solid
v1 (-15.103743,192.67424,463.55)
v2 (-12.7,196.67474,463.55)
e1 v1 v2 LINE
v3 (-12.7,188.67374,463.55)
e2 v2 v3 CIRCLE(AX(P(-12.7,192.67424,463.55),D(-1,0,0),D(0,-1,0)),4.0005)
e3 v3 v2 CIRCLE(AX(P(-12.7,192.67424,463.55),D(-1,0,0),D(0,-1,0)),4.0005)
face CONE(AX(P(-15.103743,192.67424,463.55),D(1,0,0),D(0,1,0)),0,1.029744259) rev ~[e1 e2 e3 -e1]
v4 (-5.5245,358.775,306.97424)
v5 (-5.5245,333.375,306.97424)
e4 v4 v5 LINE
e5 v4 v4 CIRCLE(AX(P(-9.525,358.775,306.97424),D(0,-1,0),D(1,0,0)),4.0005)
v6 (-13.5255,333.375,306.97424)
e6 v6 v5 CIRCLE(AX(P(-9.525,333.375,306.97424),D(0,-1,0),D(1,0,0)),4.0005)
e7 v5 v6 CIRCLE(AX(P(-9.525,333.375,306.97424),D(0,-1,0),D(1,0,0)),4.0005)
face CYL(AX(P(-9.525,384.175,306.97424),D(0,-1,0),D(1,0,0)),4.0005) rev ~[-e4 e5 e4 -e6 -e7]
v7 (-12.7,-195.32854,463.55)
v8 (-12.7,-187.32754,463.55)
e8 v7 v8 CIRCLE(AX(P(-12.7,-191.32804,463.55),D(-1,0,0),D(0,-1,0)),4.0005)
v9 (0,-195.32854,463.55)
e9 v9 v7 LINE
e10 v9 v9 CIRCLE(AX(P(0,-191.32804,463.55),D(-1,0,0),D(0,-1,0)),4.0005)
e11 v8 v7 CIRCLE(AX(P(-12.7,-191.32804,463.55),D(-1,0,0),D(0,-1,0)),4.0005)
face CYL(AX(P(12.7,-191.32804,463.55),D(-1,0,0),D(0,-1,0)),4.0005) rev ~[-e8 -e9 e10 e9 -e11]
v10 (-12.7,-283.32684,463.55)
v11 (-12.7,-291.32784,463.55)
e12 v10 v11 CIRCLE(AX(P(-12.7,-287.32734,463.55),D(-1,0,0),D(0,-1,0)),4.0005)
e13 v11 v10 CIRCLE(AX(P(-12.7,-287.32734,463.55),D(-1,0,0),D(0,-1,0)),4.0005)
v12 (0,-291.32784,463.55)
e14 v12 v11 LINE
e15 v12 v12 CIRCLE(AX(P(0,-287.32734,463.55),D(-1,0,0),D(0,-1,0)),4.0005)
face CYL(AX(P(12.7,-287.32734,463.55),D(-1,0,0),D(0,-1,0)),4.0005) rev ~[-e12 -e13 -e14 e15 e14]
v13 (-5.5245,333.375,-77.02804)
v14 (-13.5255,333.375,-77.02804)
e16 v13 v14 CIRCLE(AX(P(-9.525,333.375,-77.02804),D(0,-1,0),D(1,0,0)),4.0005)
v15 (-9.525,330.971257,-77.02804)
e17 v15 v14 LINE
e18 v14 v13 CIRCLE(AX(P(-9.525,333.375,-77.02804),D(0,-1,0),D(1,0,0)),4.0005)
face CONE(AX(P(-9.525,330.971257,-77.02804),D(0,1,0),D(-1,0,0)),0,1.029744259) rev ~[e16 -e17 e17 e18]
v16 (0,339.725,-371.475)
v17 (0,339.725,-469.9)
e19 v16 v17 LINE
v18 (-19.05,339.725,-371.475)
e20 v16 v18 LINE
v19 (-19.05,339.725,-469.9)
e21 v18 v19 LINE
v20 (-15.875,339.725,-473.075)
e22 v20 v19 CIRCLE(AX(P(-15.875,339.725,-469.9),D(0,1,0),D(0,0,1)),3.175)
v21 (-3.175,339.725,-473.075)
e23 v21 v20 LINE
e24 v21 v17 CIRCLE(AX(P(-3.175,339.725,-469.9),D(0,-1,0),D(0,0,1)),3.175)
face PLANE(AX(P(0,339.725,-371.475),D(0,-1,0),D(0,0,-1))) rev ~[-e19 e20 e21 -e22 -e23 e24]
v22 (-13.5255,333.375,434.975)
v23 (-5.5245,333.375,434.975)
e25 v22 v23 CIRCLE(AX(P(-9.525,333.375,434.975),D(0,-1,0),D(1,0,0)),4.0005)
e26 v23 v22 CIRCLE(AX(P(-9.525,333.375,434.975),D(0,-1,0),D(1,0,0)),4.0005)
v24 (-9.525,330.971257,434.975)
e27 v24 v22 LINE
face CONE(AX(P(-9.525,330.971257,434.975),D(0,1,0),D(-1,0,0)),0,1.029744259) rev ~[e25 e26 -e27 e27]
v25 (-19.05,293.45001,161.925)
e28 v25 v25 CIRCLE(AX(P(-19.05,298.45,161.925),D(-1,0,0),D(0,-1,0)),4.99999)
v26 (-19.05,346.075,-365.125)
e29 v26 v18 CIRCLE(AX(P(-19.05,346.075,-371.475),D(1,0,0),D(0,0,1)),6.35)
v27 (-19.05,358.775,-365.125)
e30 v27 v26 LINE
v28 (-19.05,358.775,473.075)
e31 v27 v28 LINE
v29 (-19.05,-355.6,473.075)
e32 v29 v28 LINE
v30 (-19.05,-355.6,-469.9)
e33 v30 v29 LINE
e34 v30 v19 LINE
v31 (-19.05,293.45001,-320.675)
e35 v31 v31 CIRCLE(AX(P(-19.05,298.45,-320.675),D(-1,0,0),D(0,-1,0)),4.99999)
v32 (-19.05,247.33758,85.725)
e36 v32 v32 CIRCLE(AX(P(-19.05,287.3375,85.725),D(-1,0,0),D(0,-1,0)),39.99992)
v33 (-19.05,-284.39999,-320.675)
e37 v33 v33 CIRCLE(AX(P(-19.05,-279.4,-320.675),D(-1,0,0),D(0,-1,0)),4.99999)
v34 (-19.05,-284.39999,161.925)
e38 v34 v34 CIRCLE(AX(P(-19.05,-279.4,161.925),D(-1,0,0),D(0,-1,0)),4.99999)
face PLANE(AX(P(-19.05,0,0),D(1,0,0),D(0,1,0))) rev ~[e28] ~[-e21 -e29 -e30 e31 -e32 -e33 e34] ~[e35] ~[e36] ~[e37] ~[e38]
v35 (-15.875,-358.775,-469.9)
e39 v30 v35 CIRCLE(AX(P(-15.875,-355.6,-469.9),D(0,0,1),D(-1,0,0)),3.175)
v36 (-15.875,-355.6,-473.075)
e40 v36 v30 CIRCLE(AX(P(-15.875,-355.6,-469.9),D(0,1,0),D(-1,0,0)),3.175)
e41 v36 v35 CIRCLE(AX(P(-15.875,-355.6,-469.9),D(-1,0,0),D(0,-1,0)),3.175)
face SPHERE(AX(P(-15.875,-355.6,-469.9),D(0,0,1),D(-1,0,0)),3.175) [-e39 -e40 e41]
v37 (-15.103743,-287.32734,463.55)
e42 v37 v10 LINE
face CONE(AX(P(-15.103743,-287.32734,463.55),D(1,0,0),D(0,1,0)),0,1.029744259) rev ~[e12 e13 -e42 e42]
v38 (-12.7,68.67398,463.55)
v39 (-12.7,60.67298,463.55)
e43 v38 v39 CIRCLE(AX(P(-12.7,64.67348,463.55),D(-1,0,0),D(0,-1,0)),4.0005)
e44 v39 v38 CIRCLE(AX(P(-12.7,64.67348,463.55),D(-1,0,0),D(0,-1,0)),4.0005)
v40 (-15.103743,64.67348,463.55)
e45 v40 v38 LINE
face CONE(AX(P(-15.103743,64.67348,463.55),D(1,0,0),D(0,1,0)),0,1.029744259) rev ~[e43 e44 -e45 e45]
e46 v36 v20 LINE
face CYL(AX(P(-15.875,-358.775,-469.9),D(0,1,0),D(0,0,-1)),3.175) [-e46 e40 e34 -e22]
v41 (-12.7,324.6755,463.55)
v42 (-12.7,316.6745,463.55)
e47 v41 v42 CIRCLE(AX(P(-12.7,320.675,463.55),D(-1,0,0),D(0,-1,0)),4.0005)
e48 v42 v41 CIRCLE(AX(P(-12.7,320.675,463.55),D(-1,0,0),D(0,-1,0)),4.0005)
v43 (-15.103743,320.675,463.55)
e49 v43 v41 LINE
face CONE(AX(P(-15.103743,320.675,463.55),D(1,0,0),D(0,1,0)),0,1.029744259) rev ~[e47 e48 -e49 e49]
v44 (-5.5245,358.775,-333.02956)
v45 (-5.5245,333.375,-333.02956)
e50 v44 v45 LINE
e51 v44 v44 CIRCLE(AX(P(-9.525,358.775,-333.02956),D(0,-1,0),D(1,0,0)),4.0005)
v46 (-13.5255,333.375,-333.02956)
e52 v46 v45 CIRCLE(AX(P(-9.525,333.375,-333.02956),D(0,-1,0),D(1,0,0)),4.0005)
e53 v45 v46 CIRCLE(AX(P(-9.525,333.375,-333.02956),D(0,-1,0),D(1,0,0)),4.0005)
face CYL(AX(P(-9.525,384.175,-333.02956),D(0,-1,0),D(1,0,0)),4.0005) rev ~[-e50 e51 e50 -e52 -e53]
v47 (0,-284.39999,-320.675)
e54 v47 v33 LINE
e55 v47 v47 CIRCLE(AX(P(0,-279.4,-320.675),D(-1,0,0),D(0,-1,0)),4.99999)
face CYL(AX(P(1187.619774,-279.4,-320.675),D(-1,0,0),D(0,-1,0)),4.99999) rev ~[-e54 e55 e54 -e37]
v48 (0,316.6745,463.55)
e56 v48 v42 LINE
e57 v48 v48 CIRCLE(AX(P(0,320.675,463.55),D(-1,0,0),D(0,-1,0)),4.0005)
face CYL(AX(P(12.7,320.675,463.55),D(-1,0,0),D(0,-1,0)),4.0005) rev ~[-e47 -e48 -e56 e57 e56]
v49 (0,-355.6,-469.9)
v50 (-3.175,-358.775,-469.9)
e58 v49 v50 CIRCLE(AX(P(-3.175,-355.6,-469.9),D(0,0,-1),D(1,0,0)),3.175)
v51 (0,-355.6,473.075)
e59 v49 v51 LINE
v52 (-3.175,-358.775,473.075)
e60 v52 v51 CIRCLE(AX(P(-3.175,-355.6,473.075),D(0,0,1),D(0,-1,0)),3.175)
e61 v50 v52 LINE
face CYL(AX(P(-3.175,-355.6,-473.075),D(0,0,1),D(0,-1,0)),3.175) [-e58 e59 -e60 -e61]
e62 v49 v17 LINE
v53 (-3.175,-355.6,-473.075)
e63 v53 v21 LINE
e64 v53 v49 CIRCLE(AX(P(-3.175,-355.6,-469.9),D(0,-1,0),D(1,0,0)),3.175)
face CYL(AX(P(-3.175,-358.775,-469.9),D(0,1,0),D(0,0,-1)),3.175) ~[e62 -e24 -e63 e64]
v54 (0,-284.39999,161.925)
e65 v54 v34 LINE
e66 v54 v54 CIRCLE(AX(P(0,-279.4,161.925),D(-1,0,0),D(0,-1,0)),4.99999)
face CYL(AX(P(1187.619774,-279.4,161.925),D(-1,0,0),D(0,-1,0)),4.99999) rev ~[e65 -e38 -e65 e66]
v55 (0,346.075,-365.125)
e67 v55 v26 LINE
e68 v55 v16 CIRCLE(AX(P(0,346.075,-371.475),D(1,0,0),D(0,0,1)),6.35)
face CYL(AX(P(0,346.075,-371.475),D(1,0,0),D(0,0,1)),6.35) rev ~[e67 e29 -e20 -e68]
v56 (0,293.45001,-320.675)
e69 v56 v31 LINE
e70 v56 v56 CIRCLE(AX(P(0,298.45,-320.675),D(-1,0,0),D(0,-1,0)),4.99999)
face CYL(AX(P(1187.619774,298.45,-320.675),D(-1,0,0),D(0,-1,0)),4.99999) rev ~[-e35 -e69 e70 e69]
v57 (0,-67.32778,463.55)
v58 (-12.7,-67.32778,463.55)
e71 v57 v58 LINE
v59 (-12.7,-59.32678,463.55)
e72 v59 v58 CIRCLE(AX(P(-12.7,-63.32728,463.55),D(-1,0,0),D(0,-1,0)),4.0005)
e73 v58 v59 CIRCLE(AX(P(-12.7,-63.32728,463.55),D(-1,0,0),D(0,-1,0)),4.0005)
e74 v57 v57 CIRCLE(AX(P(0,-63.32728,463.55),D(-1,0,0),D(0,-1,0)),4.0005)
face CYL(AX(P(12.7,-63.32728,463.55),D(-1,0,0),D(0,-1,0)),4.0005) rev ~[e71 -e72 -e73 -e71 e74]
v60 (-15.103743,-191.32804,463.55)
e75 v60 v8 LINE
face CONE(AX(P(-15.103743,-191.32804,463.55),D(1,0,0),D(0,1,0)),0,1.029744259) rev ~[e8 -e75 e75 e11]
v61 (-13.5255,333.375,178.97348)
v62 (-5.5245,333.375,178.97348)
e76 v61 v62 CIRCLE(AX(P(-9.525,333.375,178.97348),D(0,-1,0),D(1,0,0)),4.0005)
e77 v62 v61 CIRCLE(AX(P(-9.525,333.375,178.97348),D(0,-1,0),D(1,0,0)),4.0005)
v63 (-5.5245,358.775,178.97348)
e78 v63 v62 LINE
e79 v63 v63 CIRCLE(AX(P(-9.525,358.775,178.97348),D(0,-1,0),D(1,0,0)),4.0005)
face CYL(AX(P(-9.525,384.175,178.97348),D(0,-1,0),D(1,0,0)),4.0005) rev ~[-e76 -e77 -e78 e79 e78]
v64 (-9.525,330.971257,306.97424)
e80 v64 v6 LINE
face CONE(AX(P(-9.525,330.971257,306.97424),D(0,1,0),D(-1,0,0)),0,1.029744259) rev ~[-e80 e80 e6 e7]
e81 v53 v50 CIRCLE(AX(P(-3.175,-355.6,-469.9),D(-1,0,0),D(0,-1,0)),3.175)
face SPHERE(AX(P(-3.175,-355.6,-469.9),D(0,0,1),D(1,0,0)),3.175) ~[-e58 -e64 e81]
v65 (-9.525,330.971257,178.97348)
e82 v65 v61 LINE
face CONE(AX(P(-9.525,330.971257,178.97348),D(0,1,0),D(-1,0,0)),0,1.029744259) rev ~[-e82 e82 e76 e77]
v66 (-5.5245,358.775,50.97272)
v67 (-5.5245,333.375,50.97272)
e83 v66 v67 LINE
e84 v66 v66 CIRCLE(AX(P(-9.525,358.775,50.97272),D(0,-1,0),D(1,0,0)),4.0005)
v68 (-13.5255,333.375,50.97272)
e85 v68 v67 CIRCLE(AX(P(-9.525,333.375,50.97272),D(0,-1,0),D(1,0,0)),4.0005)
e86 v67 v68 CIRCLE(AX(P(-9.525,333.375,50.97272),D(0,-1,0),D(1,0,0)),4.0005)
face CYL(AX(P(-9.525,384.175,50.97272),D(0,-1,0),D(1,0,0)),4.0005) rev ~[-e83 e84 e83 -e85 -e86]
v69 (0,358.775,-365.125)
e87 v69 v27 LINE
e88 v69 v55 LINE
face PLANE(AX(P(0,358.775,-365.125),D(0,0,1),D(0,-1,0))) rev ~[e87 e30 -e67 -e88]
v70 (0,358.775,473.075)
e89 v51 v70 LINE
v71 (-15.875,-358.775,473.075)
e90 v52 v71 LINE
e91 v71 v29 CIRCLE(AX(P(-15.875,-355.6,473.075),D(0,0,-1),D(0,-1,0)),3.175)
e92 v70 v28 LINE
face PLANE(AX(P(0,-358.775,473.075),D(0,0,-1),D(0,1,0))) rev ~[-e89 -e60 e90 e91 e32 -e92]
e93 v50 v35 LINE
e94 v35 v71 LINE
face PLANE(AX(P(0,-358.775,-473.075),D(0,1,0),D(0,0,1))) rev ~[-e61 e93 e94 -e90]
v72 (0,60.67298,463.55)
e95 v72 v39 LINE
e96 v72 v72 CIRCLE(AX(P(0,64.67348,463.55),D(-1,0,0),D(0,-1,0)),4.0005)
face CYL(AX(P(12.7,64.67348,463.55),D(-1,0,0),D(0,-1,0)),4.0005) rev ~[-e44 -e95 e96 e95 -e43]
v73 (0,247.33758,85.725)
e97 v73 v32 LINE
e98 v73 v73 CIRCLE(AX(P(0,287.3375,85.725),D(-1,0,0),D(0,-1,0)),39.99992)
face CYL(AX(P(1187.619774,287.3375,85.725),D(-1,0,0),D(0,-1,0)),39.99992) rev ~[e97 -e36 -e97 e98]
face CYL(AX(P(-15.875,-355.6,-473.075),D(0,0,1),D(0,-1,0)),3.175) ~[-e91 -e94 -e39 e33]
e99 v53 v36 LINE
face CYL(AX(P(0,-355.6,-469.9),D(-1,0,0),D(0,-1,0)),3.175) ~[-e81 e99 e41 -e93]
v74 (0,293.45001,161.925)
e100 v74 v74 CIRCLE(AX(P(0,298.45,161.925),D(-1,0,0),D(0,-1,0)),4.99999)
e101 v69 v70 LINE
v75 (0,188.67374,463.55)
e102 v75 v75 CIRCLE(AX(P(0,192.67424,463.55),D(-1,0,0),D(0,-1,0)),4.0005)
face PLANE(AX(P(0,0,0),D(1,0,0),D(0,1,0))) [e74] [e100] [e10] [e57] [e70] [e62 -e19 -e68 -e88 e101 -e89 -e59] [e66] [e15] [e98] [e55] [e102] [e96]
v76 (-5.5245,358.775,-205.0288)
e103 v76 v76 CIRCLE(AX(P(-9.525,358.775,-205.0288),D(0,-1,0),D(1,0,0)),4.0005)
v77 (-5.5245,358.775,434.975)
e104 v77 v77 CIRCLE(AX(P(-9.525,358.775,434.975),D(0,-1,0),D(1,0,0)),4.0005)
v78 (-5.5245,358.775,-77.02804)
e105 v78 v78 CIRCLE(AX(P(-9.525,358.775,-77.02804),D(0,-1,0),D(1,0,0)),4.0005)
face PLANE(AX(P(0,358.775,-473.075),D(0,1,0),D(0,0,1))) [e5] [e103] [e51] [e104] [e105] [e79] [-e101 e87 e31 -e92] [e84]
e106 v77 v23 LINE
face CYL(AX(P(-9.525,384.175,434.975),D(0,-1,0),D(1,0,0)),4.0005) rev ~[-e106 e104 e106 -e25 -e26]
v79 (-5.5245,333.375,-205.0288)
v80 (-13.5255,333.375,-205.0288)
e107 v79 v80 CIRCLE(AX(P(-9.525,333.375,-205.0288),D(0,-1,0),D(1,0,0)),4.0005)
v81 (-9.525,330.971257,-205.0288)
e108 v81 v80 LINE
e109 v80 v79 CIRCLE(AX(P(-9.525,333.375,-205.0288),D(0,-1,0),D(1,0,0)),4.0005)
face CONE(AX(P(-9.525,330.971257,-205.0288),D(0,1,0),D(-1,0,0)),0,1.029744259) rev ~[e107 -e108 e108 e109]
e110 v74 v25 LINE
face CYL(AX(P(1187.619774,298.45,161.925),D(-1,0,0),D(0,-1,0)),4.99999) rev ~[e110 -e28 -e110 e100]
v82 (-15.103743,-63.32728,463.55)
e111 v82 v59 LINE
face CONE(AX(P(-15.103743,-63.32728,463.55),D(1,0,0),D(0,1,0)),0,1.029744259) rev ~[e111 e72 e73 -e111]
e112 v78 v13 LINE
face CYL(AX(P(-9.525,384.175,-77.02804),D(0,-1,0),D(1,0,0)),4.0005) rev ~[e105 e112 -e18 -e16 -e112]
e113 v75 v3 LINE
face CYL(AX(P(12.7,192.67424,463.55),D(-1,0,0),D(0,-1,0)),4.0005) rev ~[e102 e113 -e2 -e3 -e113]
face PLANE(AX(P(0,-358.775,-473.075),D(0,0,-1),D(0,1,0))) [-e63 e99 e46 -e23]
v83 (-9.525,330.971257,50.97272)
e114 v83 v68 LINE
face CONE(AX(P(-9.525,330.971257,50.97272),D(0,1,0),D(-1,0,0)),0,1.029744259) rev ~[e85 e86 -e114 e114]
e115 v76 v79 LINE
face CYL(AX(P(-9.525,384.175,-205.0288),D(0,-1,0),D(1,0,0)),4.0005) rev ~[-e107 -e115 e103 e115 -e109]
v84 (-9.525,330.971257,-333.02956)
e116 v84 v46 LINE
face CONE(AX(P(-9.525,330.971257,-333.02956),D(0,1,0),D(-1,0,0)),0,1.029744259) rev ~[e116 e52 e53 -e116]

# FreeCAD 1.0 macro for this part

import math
import FreeCAD as App
import Part
import Sketcher
Q = App.Units.Quantity


def edges_at(feature, points):
    """Names of the edges that pass closest to the given points."""
    edges = feature.Shape.Edges
    near = lambda p: min(range(len(edges)), key=lambda i: edges[i].distToShape(Part.Vertex(*p))[0])
    return sorted({f"Edge{near(p) + 1}" for p in points})

doc = App.newDocument("Part")
body = doc.addObject("PartDesign::Body", "Body")

# Sketch on YZ plane
sketch1 = doc.addObject("Sketcher::SketchObject", "Sketch")
body.addObject(sketch1)
sketch1.AttachmentSupport = (doc.YZ_Plane, [""])
sketch1.MapMode = "FlatFace"
sketch1.addGeometry([
    Part.LineSegment(App.Vector(-359, 473, 0), App.Vector(-359, -473, 0)),
    Part.LineSegment(App.Vector(-359, -473, 0), App.Vector(359, -473, 0)),
    Part.LineSegment(App.Vector(359, -473, 0), App.Vector(359, 473, 0)),
    Part.LineSegment(App.Vector(359, 473, 0), App.Vector(-359, 473, 0)),
], False)
sketch1.addConstraint([
    Sketcher.Constraint("Coincident", 0, 2, 1, 1),
    Sketcher.Constraint("Coincident", 1, 2, 2, 1),
    Sketcher.Constraint("Coincident", 2, 2, 3, 1),
    Sketcher.Constraint("Coincident", 3, 2, 0, 1),
    Sketcher.Constraint("Vertical", 0),
    Sketcher.Constraint("Horizontal", 1),
    Sketcher.Constraint("Vertical", 2),
    Sketcher.Constraint("Horizontal", 3),
    Sketcher.Constraint("Symmetric", 0, 2, 2, 2, -1, 1),
    Sketcher.Constraint("DistanceX", 1, 1, 1, 2, Q("28.25 in")),
    Sketcher.Constraint("DistanceY", 0, 2, 0, 1, Q("37.25 in")),
])
pad1 = doc.addObject("PartDesign::Pad", "Pad")
body.addObject(pad1)
pad1.Profile = sketch1
pad1.Length = Q("0.75 in")
pad1.Reversed = True

# Sketch on YZ plane
sketch2 = doc.addObject("Sketcher::SketchObject", "Sketch001")
body.addObject(sketch2)
sketch2.AttachmentSupport = (doc.YZ_Plane, [""])
sketch2.MapMode = "FlatFace"
sketch2.addGeometry([
    Part.Circle(App.Vector(-287.3, 463.6, 0), App.Vector(0, 0, 1), 4),  # 0
    Part.Circle(App.Vector(-191.3, 463.6, 0), App.Vector(0, 0, 1), 4),  # 1
    Part.Circle(App.Vector(-63.3, 463.6, 0), App.Vector(0, 0, 1), 4),  # 2
    Part.Circle(App.Vector(64.7, 463.6, 0), App.Vector(0, 0, 1), 4),  # 3
    Part.Circle(App.Vector(192.7, 463.6, 0), App.Vector(0, 0, 1), 4),  # 4
    Part.Circle(App.Vector(320.7, 463.6, 0), App.Vector(0, 0, 1), 4),  # 5
], False)
sketch2.addConstraint([
    Sketcher.Constraint("Equal", 0, 1),
    Sketcher.Constraint("Equal", 1, 2),
    Sketcher.Constraint("Equal", 2, 3),
    Sketcher.Constraint("Equal", 3, 4),
    Sketcher.Constraint("Equal", 4, 5),
    Sketcher.Constraint("Horizontal", 0, 3, 1, 3),
    Sketcher.Constraint("Horizontal", 1, 3, 2, 3),
    Sketcher.Constraint("Horizontal", 2, 3, 3, 3),
    Sketcher.Constraint("Horizontal", 3, 3, 4, 3),
    Sketcher.Constraint("Horizontal", 4, 3, 5, 3),
    Sketcher.Constraint("Diameter", 0, Q("0.315 in")),
    Sketcher.Constraint("DistanceY", -1, 1, 0, 3, Q("18.25 in")),
    Sketcher.Constraint("DistanceX", -1, 1, 5, 3, Q("12.625 in")),
    Sketcher.Constraint("DistanceX", 0, 3, -1, 1, Q("11.3121 in")),
    Sketcher.Constraint("DistanceX", 1, 3, -1, 1, Q("7.5326 in")),
    Sketcher.Constraint("DistanceX", 2, 3, -1, 1, Q("2.4932 in")),
    Sketcher.Constraint("DistanceX", -1, 1, 3, 3, Q("2.5462 in")),
    Sketcher.Constraint("DistanceX", -1, 1, 4, 3, Q("7.5856 in")),
])
doc.recompute()
hole = doc.addObject("PartDesign::Hole", "Hole")
body.addObject(hole)
hole.Profile = sketch2
hole.ThreadType = "None"
hole.Diameter = Q("0.315 in")
hole.DepthType = "Dimension"
hole.Depth = Q("0.5 in")
hole.DrillPoint = "Angled"
hole.DrillPointAngle = 118

# Sketch on YZ plane
sketch3 = doc.addObject("Sketcher::SketchObject", "Sketch002")
body.addObject(sketch3)
sketch3.AttachmentSupport = (doc.YZ_Plane, [""])
sketch3.MapMode = "FlatFace"
sketch3.addGeometry([
    Part.LineSegment(App.Vector(340, -473, 0), App.Vector(359, -473, 0)),  # 0
    Part.LineSegment(App.Vector(359, -473, 0), App.Vector(359, -365, 0)),  # 1
    Part.LineSegment(App.Vector(359, -365, 0), App.Vector(346, -365, 0)),  # 2
    Part.ArcOfCircle(Part.Circle(App.Vector(346, -371, 0), App.Vector(0, 0, 1), 6), math.radians(90), math.radians(180)),  # 3
    Part.LineSegment(App.Vector(340, -371, 0), App.Vector(340, -473, 0)),  # 4
], False)
sketch3.addConstraint([
    Sketcher.Constraint("Coincident", 0, 2, 1, 1),
    Sketcher.Constraint("Coincident", 1, 2, 2, 1),
    Sketcher.Constraint("Tangent", 2, 2, 3, 1),
    Sketcher.Constraint("Tangent", 3, 2, 4, 1),
    Sketcher.Constraint("Coincident", 4, 2, 0, 1),
    Sketcher.Constraint("Horizontal", 0),
    Sketcher.Constraint("Vertical", 1),
    Sketcher.Constraint("Horizontal", 2),
    Sketcher.Constraint("Vertical", 4),
    Sketcher.Constraint("DistanceY", 4, 2, 4, 1, Q("4 in")),
    Sketcher.Constraint("Radius", 3, Q("0.25 in")),
    Sketcher.Constraint("DistanceX", 2, 2, 2, 1, Q("0.5 in")),
    Sketcher.Constraint("DistanceX", -1, 1, 3, 3, Q("13.625 in")),
    Sketcher.Constraint("DistanceY", 3, 3, -1, 1, Q("14.625 in")),
])
pocket1 = doc.addObject("PartDesign::Pocket", "Pocket")
body.addObject(pocket1)
pocket1.Profile = sketch3
pocket1.Type = "ThroughAll"

# Sketch on YZ plane
sketch4 = doc.addObject("Sketcher::SketchObject", "Sketch003")
body.addObject(sketch4)
sketch4.AttachmentSupport = (doc.YZ_Plane, [""])
sketch4.MapMode = "FlatFace"
sketch4.addGeometry([
    Part.Circle(App.Vector(-279.4, 161.9, 0), App.Vector(0, 0, 1), 5),
    Part.Circle(App.Vector(-279.4, -320.7, 0), App.Vector(0, 0, 1), 5),
    Part.Circle(App.Vector(298.4, -320.7, 0), App.Vector(0, 0, 1), 5),
    Part.Circle(App.Vector(298.4, 161.9, 0), App.Vector(0, 0, 1), 5),
], False)
sketch4.addConstraint([
    Sketcher.Constraint("Equal", 0, 1),
    Sketcher.Constraint("Equal", 1, 2),
    Sketcher.Constraint("Equal", 2, 3),
    Sketcher.Constraint("Horizontal", 1, 3, 2, 3),
    Sketcher.Constraint("Horizontal", 0, 3, 3, 3),
    Sketcher.Constraint("Vertical", 0, 3, 1, 3),
    Sketcher.Constraint("Vertical", 2, 3, 3, 3),
    Sketcher.Constraint("DistanceX", 0, 3, -1, 1, Q("11 in")),
    Sketcher.Constraint("DistanceY", 1, 3, 0, 3, Q("19 in")),
    Sketcher.Constraint("Diameter", 0, Q("0.3937 in")),
    Sketcher.Constraint("DistanceX", -1, 1, 2, 3, Q("11.75 in")),
    Sketcher.Constraint("DistanceY", -1, 1, 0, 3, Q("6.375 in")),
])
doc.recompute()
hole2 = doc.addObject("PartDesign::Hole", "Hole001")
body.addObject(hole2)
hole2.Profile = sketch4
hole2.ThreadType = "None"
hole2.Diameter = Q("0.3937 in")
hole2.DepthType = "ThroughAll"

# Sketch on YZ plane
sketch5 = doc.addObject("Sketcher::SketchObject", "Sketch004")
body.addObject(sketch5)
sketch5.AttachmentSupport = (doc.YZ_Plane, [""])
sketch5.MapMode = "FlatFace"
sketch5.addGeometry(Part.Circle(App.Vector(287, 86, 0), App.Vector(0, 0, 1), 40), False)
sketch5.addConstraint([
    Sketcher.Constraint("Diameter", 0, Q("3.1496 in")),
    Sketcher.Constraint("DistanceX", -1, 1, 0, 3, Q("11.3125 in")),
    Sketcher.Constraint("DistanceY", -1, 1, 0, 3, Q("3.375 in")),
])
doc.recompute()
hole3 = doc.addObject("PartDesign::Hole", "Hole002")
body.addObject(hole3)
hole3.Profile = sketch5
hole3.ThreadType = "None"
hole3.Diameter = Q("3.1496 in")
hole3.DepthType = "ThroughAll"

# Sketch on XZ plane
sketch6 = doc.addObject("Sketcher::SketchObject", "Sketch005")
body.addObject(sketch6)
sketch6.AttachmentSupport = (doc.XZ_Plane, [""])
sketch6.MapMode = "FlatFace"
sketch6.AttachmentOffset = App.Placement(App.Vector(0, 0, -14.125 * 25.4), App.Rotation())
sketch6.addGeometry([
    Part.Circle(App.Vector(-9.5, 435, 0), App.Vector(0, 0, 1), 4),  # 0
    Part.Circle(App.Vector(-9.5, 307, 0), App.Vector(0, 0, 1), 4),  # 1
    Part.Circle(App.Vector(-9.5, 179, 0), App.Vector(0, 0, 1), 4),  # 2
    Part.Circle(App.Vector(-9.5, 51, 0), App.Vector(0, 0, 1), 4),  # 3
    Part.Circle(App.Vector(-9.5, -77, 0), App.Vector(0, 0, 1), 4),  # 4
    Part.Circle(App.Vector(-9.5, -205, 0), App.Vector(0, 0, 1), 4),  # 5
    Part.Circle(App.Vector(-9.5, -333, 0), App.Vector(0, 0, 1), 4),  # 6
], False)
sketch6.addConstraint([
    Sketcher.Constraint("Equal", 0, 1),
    Sketcher.Constraint("Equal", 1, 2),
    Sketcher.Constraint("Equal", 2, 3),
    Sketcher.Constraint("Equal", 3, 4),
    Sketcher.Constraint("Equal", 4, 5),
    Sketcher.Constraint("Equal", 5, 6),
    Sketcher.Constraint("Vertical", 0, 3, 1, 3),
    Sketcher.Constraint("Vertical", 1, 3, 2, 3),
    Sketcher.Constraint("Vertical", 2, 3, 3, 3),
    Sketcher.Constraint("Vertical", 3, 3, 4, 3),
    Sketcher.Constraint("Vertical", 4, 3, 5, 3),
    Sketcher.Constraint("Vertical", 5, 3, 6, 3),
    Sketcher.Constraint("Diameter", 0, Q("0.315 in")),
    Sketcher.Constraint("DistanceX", 0, 3, -1, 1, Q("0.375 in")),
    Sketcher.Constraint("DistanceY", -1, 1, 0, 3, Q("17.125 in")),
    Sketcher.Constraint("DistanceY", 5, 3, -1, 1, Q("8.072 in")),
    Sketcher.Constraint("DistanceY", 6, 3, 1, 3, Q("25.197 in")),
    Sketcher.Constraint("DistanceY", -1, 1, 1, 3, Q("12.0856 in")),
    Sketcher.Constraint("DistanceY", -1, 1, 2, 3, Q("7.0462 in")),
    Sketcher.Constraint("DistanceY", -1, 1, 3, 3, Q("2.0068 in")),
    Sketcher.Constraint("DistanceY", 4, 3, -1, 1, Q("3.0326 in")),
])
doc.recompute()
hole4 = doc.addObject("PartDesign::Hole", "Hole003")
body.addObject(hole4)
hole4.Profile = sketch6
hole4.ThreadType = "None"
hole4.Diameter = Q("0.315 in")
hole4.DepthType = "Dimension"
hole4.Depth = Q("1 in")
hole4.DrillPoint = "Angled"
hole4.DrillPointAngle = 118
hole4.Reversed = True
doc.recompute()

fillet = doc.addObject("PartDesign::Fillet", "Fillet")
body.addObject(fillet)
fillet.Base = (hole4, edges_at(hole4, [
    (-19.05, -358.775, 0),
    (0, -358.775, 0),
    (0, -9.525, -473.075),
    (-19.05, -9.525, -473.075),
    (-9.525, -358.775, -473.075),
]))
fillet.Radius = Q("0.125 in")

doc.recompute()
